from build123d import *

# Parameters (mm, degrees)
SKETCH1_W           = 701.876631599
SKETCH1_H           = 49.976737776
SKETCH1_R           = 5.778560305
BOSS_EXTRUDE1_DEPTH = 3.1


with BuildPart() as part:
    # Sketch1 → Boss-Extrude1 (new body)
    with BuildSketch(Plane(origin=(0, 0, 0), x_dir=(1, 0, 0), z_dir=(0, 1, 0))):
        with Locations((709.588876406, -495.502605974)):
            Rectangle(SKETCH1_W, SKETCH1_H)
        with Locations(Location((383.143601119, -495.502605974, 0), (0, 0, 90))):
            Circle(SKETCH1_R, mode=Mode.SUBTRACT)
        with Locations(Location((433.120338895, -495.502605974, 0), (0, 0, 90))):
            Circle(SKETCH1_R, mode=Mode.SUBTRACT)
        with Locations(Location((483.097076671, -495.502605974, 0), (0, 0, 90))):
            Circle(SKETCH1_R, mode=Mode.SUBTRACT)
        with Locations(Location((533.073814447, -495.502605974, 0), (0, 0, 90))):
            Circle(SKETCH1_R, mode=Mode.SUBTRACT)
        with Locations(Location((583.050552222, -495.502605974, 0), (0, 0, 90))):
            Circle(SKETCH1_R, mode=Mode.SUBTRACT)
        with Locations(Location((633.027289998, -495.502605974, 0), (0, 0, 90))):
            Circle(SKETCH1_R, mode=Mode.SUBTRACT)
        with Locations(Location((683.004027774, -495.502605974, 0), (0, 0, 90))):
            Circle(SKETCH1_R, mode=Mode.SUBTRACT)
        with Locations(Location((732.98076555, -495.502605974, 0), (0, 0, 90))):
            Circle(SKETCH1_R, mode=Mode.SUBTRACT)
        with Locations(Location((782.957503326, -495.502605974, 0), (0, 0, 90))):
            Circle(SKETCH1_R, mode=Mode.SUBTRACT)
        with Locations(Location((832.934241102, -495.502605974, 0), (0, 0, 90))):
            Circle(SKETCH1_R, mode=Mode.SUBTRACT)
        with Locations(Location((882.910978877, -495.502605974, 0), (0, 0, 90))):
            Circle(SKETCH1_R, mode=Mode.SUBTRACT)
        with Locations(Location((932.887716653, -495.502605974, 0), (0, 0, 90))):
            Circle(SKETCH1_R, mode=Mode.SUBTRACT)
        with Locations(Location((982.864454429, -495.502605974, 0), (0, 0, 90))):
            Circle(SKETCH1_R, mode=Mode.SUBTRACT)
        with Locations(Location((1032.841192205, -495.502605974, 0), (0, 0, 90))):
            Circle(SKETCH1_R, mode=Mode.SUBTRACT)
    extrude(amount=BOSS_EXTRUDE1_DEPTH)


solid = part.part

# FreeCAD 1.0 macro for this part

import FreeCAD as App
import Part
import Sketcher
from FreeCAD import Vector
Q = App.Units.Quantity


def add_polygon(sketch, points):
    """Adds a closed chain of lines whose ends are joined by coincident constraints."""
    first, n = sketch.GeometryCount, len(points)
    for a, b in zip(points, points[1:] + points[:1]):
        sketch.addGeometry(Part.LineSegment(App.Vector(*a, 0), App.Vector(*b, 0)), False)
    for i in range(n):
        sketch.addConstraint(Sketcher.Constraint("Coincident", first + i, 2, first + (i + 1) % n, 1))

doc = App.newDocument("Part")
body = doc.addObject("PartDesign::Body", "Body")

# Sketch on XZ plane
sketch1 = body.newObject("Sketcher::SketchObject", "Sketch")
sketch1.AttachmentSupport = (doc.getObject("XZ_Plane"), [""])
sketch1.MapMode = "FlatFace"
add_polygon(sketch1, [(359, 471), (359, 520), (1061, 520), (1061, 471)])  # lines 0-3
sketch1.addGeometry(Part.Circle(Vector(383, 496, 0), Vector(0, 0, 1), 6), False)  # 4
sketch1.addGeometry(Part.Circle(Vector(433, 496, 0), Vector(0, 0, 1), 6), False)  # 5
sketch1.addGeometry(Part.Circle(Vector(483, 496, 0), Vector(0, 0, 1), 6), False)  # 6
sketch1.addGeometry(Part.Circle(Vector(533, 496, 0), Vector(0, 0, 1), 6), False)  # 7
sketch1.addGeometry(Part.Circle(Vector(583, 496, 0), Vector(0, 0, 1), 6), False)  # 8
sketch1.addGeometry(Part.Circle(Vector(633, 496, 0), Vector(0, 0, 1), 6), False)  # 9
sketch1.addGeometry(Part.Circle(Vector(683, 496, 0), Vector(0, 0, 1), 6), False)  # 10
sketch1.addGeometry(Part.Circle(Vector(733, 496, 0), Vector(0, 0, 1), 6), False)  # 11
sketch1.addGeometry(Part.Circle(Vector(783, 496, 0), Vector(0, 0, 1), 6), False)  # 12
sketch1.addGeometry(Part.Circle(Vector(833, 496, 0), Vector(0, 0, 1), 6), False)  # 13
sketch1.addGeometry(Part.Circle(Vector(883, 496, 0), Vector(0, 0, 1), 6), False)  # 14
sketch1.addGeometry(Part.Circle(Vector(933, 496, 0), Vector(0, 0, 1), 6), False)  # 15
sketch1.addGeometry(Part.Circle(Vector(983, 496, 0), Vector(0, 0, 1), 6), False)  # 16
sketch1.addGeometry(Part.Circle(Vector(1033, 496, 0), Vector(0, 0, 1), 6), False)  # 17
sketch1.addConstraint(Sketcher.Constraint("Vertical", 0))
sketch1.addConstraint(Sketcher.Constraint("Horizontal", 1))
sketch1.addConstraint(Sketcher.Constraint("Vertical", 2))
sketch1.addConstraint(Sketcher.Constraint("Horizontal", 3))
sketch1.addConstraint(Sketcher.Constraint("Equal", 4, 5))
sketch1.addConstraint(Sketcher.Constraint("Equal", 5, 6))
sketch1.addConstraint(Sketcher.Constraint("Equal", 6, 7))
sketch1.addConstraint(Sketcher.Constraint("Equal", 7, 8))
sketch1.addConstraint(Sketcher.Constraint("Equal", 8, 9))
sketch1.addConstraint(Sketcher.Constraint("Equal", 9, 10))
sketch1.addConstraint(Sketcher.Constraint("Equal", 10, 11))
sketch1.addConstraint(Sketcher.Constraint("Equal", 11, 12))
sketch1.addConstraint(Sketcher.Constraint("Equal", 12, 13))
sketch1.addConstraint(Sketcher.Constraint("Equal", 13, 14))
sketch1.addConstraint(Sketcher.Constraint("Equal", 14, 15))
sketch1.addConstraint(Sketcher.Constraint("Equal", 15, 16))
sketch1.addConstraint(Sketcher.Constraint("Equal", 16, 17))
sketch1.addConstraint(Sketcher.Constraint("Horizontal", 4, 3, 5, 3))
sketch1.addConstraint(Sketcher.Constraint("Horizontal", 5, 3, 6, 3))
sketch1.addConstraint(Sketcher.Constraint("Horizontal", 6, 3, 7, 3))
sketch1.addConstraint(Sketcher.Constraint("Horizontal", 7, 3, 8, 3))
sketch1.addConstraint(Sketcher.Constraint("Horizontal", 8, 3, 9, 3))
sketch1.addConstraint(Sketcher.Constraint("Horizontal", 9, 3, 10, 3))
sketch1.addConstraint(Sketcher.Constraint("Horizontal", 10, 3, 11, 3))
sketch1.addConstraint(Sketcher.Constraint("Horizontal", 11, 3, 12, 3))
sketch1.addConstraint(Sketcher.Constraint("Horizontal", 12, 3, 13, 3))
sketch1.addConstraint(Sketcher.Constraint("Horizontal", 13, 3, 14, 3))
sketch1.addConstraint(Sketcher.Constraint("Horizontal", 14, 3, 15, 3))
sketch1.addConstraint(Sketcher.Constraint("Horizontal", 15, 3, 16, 3))
sketch1.addConstraint(Sketcher.Constraint("Horizontal", 16, 3, 17, 3))
sketch1.addConstraint(Sketcher.Constraint("Diameter", 4, Q("11.557121 mm")))
sketch1.addConstraint(Sketcher.Constraint("DistanceX", 17, 3, 1, 2, Q("27.686 mm")))
sketch1.addConstraint(Sketcher.Constraint("DistanceX", 1, 1, 1, 2, Q("701.876632 mm")))
sketch1.addConstraint(Sketcher.Constraint("DistanceX", -1, 1, 4, 3, Q("383.143601 mm")))
sketch1.addConstraint(Sketcher.Constraint("DistanceY", 0, 1, 0, 2, Q("49.976738 mm")))
sketch1.addConstraint(Sketcher.Constraint("DistanceX", -1, 1, 5, 3, Q("433.120339 mm")))
sketch1.addConstraint(Sketcher.Constraint("DistanceX", -1, 1, 9, 3, Q("633.02729 mm")))
sketch1.addConstraint(Sketcher.Constraint("DistanceX", -1, 1, 13, 3, Q("832.934241 mm")))
sketch1.addConstraint(Sketcher.Constraint("DistanceX", -1, 1, 14, 3, Q("882.910979 mm")))
sketch1.addConstraint(Sketcher.Constraint("DistanceX", -1, 1, 0, 2, Q("358.650561 mm")))
sketch1.addConstraint(Sketcher.Constraint("DistanceX", 4, 3, 8, 3, Q("199.906951 mm")))
sketch1.addConstraint(Sketcher.Constraint("DistanceX", 6, 3, 10, 3, Q("199.906951 mm")))
sketch1.addConstraint(Sketcher.Constraint("DistanceX", 5, 3, 10, 3, Q("249.883689 mm")))
sketch1.addConstraint(Sketcher.Constraint("DistanceX", 7, 3, 11, 3, Q("199.906951 mm")))
sketch1.addConstraint(Sketcher.Constraint("DistanceX", 6, 3, 11, 3, Q("249.883689 mm")))
sketch1.addConstraint(Sketcher.Constraint("DistanceX", 8, 3, 12, 3, Q("199.906951 mm")))
sketch1.addConstraint(Sketcher.Constraint("DistanceX", 11, 3, 15, 3, Q("199.906951 mm")))
sketch1.addConstraint(Sketcher.Constraint("DistanceX", 12, 3, 16, 3, Q("199.906951 mm")))
sketch1.addConstraint(Sketcher.Constraint("DistanceY", 4, 3, 0, 2, Q("24.988369 mm")))
sketch1.addConstraint(Sketcher.Constraint("DistanceY", -1, 1, 4, 3, Q("495.502606 mm")))
pad1 = body.newObject("PartDesign::Pad", "Pad")
pad1.Profile = sketch1
pad1.Length = 3.1
pad1.Reversed = True

doc.recompute()
